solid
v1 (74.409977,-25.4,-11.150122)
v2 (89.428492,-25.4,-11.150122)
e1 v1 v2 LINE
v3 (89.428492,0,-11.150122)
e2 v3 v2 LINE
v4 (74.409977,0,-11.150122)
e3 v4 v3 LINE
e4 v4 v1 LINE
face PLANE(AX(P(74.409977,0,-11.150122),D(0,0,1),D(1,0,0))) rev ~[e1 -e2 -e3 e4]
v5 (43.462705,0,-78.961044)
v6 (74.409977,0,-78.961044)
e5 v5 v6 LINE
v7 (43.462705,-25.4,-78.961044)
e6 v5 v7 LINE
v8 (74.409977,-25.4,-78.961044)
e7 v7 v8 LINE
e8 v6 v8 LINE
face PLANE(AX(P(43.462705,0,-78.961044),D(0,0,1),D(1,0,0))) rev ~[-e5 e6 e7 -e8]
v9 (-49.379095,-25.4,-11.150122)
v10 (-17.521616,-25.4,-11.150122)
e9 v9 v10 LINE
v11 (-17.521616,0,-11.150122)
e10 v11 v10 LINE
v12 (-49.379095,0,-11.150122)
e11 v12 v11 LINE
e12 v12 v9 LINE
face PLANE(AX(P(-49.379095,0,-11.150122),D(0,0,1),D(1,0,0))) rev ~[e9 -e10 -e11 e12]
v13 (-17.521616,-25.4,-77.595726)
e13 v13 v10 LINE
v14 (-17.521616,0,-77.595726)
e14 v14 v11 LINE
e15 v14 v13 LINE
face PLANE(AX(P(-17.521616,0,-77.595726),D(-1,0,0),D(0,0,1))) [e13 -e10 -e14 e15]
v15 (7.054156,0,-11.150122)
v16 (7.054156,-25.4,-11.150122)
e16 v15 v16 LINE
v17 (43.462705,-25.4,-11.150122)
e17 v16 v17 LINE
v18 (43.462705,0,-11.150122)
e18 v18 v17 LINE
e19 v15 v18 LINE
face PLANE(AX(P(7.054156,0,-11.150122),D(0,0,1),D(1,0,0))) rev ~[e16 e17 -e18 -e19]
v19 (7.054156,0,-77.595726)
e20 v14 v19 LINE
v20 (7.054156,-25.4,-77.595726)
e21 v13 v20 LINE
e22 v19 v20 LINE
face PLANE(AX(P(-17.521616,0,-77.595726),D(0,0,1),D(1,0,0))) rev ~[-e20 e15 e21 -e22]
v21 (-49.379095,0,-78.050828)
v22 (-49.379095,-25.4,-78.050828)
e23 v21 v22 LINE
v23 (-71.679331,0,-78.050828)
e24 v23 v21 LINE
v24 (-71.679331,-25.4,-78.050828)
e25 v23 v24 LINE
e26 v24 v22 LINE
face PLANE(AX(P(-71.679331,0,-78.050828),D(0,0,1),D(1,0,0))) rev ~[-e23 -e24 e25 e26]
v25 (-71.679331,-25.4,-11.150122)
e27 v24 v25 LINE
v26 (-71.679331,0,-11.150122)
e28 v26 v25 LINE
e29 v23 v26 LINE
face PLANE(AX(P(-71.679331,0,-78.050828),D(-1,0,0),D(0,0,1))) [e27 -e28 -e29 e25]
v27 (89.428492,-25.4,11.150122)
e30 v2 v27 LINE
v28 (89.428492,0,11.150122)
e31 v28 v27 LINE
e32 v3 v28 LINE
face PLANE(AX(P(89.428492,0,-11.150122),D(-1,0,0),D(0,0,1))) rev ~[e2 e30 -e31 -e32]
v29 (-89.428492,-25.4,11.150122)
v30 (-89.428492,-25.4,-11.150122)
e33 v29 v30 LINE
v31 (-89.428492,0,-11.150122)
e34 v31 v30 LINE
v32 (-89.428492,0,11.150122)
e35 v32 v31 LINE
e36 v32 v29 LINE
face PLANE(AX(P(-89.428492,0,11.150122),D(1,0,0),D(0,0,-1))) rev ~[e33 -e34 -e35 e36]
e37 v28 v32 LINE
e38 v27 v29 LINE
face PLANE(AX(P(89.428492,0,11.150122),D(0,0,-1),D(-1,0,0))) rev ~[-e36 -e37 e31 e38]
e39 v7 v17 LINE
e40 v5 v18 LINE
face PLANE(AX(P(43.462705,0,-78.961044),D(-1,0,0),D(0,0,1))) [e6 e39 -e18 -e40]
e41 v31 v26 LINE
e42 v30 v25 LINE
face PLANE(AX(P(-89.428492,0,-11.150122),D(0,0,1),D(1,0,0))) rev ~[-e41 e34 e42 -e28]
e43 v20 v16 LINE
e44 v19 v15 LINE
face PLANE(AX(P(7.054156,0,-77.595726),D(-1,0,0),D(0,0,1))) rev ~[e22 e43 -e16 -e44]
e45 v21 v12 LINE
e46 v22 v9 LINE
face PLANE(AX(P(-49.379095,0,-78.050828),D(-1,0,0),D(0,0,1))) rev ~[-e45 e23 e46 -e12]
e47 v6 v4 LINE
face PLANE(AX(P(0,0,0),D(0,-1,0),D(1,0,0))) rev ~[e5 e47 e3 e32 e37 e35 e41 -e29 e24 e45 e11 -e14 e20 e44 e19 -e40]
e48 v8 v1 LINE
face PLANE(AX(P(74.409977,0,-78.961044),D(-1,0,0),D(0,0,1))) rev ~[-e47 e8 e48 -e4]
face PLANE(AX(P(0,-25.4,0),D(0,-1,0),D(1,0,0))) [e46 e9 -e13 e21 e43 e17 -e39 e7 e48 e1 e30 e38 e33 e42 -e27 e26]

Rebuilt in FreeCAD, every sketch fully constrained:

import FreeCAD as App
import Part
import Sketcher
from FreeCAD import Vector
Q = App.Units.Quantity

doc = App.newDocument("Part")
body = doc.addObject("PartDesign::Body", "Body")

# Sketch on XZ plane
sketch1 = body.newObject("Sketcher::SketchObject", "Sketch")
sketch1.AttachmentSupport = (doc.getObject("XZ_Plane"), [""])
sketch1.MapMode = "FlatFace"
sketch1.addGeometry([
    Part.LineSegment(Vector(-49, -78, 0), Vector(-49, -11, 0)),  # 0
    Part.LineSegment(Vector(-49, -11, 0), Vector(-18, -11, 0)),  # 1
    Part.LineSegment(Vector(-18, -11, 0), Vector(-18, -78, 0)),  # 2
    Part.LineSegment(Vector(-18, -78, 0), Vector(7, -78, 0)),  # 3
    Part.LineSegment(Vector(7, -78, 0), Vector(7, -11, 0)),  # 4
    Part.LineSegment(Vector(7, -11, 0), Vector(43, -11, 0)),  # 5
    Part.LineSegment(Vector(43, -11, 0), Vector(43, -79, 0)),  # 6
    Part.LineSegment(Vector(43, -79, 0), Vector(74, -79, 0)),  # 7
    Part.LineSegment(Vector(74, -79, 0), Vector(74, -11, 0)),  # 8
    Part.LineSegment(Vector(74, -11, 0), Vector(89, -11, 0)),  # 9
    Part.LineSegment(Vector(89, -11, 0), Vector(89, 11, 0)),  # 10
    Part.LineSegment(Vector(89, 11, 0), Vector(-89, 11, 0)),  # 11
    Part.LineSegment(Vector(-89, 11, 0), Vector(-89, -11, 0)),  # 12
    Part.LineSegment(Vector(-89, -11, 0), Vector(-72, -11, 0)),  # 13
    Part.LineSegment(Vector(-72, -11, 0), Vector(-72, -78, 0)),  # 14
    Part.LineSegment(Vector(-72, -78, 0), Vector(-49, -78, 0)),  # 15
], False)
sketch1.addConstraint([
    Sketcher.Constraint("Coincident", 0, 2, 1, 1),
    Sketcher.Constraint("Coincident", 1, 2, 2, 1),
    Sketcher.Constraint("Coincident", 2, 2, 3, 1),
    Sketcher.Constraint("Coincident", 3, 2, 4, 1),
    Sketcher.Constraint("Coincident", 4, 2, 5, 1),
    Sketcher.Constraint("Coincident", 5, 2, 6, 1),
    Sketcher.Constraint("Coincident", 6, 2, 7, 1),
    Sketcher.Constraint("Coincident", 7, 2, 8, 1),
    Sketcher.Constraint("Coincident", 8, 2, 9, 1),
    Sketcher.Constraint("Coincident", 9, 2, 10, 1),
    Sketcher.Constraint("Coincident", 10, 2, 11, 1),
    Sketcher.Constraint("Coincident", 11, 2, 12, 1),
    Sketcher.Constraint("Coincident", 12, 2, 13, 1),
    Sketcher.Constraint("Coincident", 13, 2, 14, 1),
    Sketcher.Constraint("Coincident", 14, 2, 15, 1),
    Sketcher.Constraint("Coincident", 15, 2, 0, 1),
    Sketcher.Constraint("Vertical", 0),
    Sketcher.Constraint("Horizontal", 1),
    Sketcher.Constraint("Vertical", 2),
    Sketcher.Constraint("Horizontal", 3),
    Sketcher.Constraint("Vertical", 4),
    Sketcher.Constraint("Horizontal", 5),
    Sketcher.Constraint("Vertical", 6),
    Sketcher.Constraint("Horizontal", 7),
    Sketcher.Constraint("Vertical", 8),
    Sketcher.Constraint("Horizontal", 9),
    Sketcher.Constraint("Vertical", 10),
    Sketcher.Constraint("Horizontal", 11),
    Sketcher.Constraint("Vertical", 12),
    Sketcher.Constraint("Horizontal", 13),
    Sketcher.Constraint("Vertical", 14),
    Sketcher.Constraint("Horizontal", 15),
    Sketcher.Constraint("Symmetric", 9, 2, 11, 2, -1, 1),
    Sketcher.Constraint("Horizontal", 1, 2, 4, 2),
    Sketcher.Constraint("Horizontal", 5, 2, 8, 2),
    Sketcher.Constraint("Horizontal", 9, 2, 12, 2),
    Sketcher.Constraint("DistanceX", 1, 1, 1, 2, Q("31.857479 mm")),
    Sketcher.Constraint("DistanceX", 5, 1, 5, 2, Q("36.408549 mm")),
    Sketcher.Constraint("DistanceX", 7, 1, 7, 2, Q("30.947272 mm")),
    Sketcher.Constraint("DistanceX", 13, 1, 13, 2, Q("17.749161 mm")),
    Sketcher.Constraint("DistanceX", 0, 2, 5, 2, Q("92.8418 mm")),
    Sketcher.Constraint("DistanceX", 9, 1, 9, 2, Q("15.018515 mm")),
    Sketcher.Constraint("DistanceX", 11, 2, 11, 1, Q("178.856984 mm")),
    Sketcher.Constraint("DistanceY", 0, 1, 0, 2, Q("66.900706 mm")),
    Sketcher.Constraint("DistanceY", 2, 2, 2, 1, Q("66.445604 mm")),
    Sketcher.Constraint("DistanceY", 6, 2, 6, 1, Q("67.810923 mm")),
    Sketcher.Constraint("DistanceY", 10, 1, 10, 2, Q("22.300244 mm")),
])
pad1 = body.newObject("PartDesign::Pad", "Pad")
pad1.Profile = sketch1
pad1.Length = Q("1 in")

doc.recompute()
